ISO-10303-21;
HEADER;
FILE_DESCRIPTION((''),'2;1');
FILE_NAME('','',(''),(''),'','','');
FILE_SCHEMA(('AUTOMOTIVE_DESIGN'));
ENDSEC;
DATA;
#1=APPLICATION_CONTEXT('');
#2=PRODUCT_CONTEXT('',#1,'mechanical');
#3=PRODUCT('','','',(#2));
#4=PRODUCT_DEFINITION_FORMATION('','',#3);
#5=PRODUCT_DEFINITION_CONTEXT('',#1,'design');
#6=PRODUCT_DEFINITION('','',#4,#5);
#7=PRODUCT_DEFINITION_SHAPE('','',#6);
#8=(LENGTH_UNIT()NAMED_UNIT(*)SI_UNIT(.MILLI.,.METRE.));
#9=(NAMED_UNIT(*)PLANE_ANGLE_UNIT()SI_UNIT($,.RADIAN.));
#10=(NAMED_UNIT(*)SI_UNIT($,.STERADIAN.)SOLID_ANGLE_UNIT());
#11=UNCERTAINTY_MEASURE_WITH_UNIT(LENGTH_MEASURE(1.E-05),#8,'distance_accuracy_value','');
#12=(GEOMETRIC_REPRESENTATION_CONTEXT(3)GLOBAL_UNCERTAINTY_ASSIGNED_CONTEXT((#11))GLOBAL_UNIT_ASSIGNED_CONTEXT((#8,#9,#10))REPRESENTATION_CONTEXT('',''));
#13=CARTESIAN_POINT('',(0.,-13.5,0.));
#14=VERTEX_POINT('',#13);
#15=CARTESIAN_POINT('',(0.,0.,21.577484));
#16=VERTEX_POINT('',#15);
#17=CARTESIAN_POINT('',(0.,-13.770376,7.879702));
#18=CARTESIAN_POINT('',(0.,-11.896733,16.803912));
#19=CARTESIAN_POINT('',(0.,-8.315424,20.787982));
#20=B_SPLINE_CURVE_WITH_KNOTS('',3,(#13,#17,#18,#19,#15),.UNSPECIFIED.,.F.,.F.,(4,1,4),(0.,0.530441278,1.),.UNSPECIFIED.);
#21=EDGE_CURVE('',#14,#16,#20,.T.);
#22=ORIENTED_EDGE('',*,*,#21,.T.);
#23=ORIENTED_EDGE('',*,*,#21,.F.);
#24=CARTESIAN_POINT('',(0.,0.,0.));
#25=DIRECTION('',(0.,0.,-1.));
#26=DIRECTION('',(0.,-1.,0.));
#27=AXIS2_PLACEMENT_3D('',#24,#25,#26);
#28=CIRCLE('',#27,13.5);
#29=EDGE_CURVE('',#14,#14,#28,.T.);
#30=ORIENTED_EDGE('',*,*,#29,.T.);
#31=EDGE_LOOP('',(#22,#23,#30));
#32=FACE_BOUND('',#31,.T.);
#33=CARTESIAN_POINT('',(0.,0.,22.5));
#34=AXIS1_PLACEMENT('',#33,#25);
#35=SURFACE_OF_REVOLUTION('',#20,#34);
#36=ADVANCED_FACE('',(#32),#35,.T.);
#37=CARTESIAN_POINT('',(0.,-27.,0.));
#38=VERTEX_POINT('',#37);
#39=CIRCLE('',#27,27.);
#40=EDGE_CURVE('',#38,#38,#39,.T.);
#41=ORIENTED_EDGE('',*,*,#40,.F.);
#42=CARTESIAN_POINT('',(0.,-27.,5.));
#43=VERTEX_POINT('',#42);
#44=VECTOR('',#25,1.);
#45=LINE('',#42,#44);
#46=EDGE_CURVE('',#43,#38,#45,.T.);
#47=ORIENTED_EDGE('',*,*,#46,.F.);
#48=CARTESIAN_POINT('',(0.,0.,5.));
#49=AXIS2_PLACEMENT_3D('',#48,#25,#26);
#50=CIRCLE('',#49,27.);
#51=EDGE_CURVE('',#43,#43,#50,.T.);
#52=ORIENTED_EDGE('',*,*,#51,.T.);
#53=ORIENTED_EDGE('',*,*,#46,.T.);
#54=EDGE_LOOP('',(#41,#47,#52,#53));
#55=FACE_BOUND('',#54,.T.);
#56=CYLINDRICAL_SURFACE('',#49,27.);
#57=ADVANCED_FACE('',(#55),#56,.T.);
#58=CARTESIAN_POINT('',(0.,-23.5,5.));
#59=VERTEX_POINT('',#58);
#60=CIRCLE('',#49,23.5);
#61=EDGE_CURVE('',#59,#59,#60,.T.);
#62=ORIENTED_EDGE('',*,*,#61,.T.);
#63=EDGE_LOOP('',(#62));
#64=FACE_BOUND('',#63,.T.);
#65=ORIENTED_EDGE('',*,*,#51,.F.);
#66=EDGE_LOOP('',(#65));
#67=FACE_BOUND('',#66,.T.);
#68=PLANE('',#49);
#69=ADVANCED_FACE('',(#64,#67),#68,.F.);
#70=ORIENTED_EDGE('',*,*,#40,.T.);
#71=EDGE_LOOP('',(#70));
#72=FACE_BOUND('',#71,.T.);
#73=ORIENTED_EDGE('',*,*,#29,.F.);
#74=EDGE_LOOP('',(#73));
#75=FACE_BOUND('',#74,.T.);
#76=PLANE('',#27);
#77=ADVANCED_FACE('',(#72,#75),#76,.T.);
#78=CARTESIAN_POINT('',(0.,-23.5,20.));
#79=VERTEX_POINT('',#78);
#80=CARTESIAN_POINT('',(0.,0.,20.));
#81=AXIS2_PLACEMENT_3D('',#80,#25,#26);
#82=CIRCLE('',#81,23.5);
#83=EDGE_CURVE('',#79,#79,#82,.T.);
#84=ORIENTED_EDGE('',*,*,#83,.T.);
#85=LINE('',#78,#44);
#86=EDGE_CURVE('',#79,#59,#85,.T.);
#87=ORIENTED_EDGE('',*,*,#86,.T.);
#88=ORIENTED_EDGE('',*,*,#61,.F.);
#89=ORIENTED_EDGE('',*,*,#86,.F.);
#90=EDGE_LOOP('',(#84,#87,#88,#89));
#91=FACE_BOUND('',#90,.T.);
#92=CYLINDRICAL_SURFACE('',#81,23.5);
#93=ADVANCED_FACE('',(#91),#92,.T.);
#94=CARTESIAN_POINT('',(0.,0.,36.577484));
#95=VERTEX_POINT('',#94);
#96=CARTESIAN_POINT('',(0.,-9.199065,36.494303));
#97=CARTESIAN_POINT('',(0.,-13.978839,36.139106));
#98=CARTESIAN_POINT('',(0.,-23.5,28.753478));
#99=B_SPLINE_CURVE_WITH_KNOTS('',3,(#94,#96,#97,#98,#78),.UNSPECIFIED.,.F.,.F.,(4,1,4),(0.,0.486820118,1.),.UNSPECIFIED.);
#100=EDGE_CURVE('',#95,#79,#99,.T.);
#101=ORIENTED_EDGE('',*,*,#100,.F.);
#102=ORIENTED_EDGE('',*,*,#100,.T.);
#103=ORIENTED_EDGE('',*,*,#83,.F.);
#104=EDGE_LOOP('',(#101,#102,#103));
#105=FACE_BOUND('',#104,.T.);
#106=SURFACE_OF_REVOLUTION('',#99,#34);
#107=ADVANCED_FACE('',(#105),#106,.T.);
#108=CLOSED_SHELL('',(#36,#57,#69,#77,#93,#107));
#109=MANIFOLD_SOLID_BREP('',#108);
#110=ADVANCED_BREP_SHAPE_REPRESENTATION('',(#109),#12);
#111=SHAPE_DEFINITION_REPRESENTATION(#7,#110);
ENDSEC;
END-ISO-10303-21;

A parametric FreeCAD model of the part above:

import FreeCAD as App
import Part
import Sketcher
Q = App.Units.Quantity

doc = App.newDocument("Part")
body = doc.addObject("PartDesign::Body", "Body")

sketch1 = body.newObject("Sketcher::SketchObject", "Sketch")
sketch1.AttachmentSupport = (doc.getObject("YZ_Plane"), [""])
sketch1.MapMode = "FlatFace"
sketch1.addGeometry([
    Part.LineSegment(App.Vector(-27, 0, 0), App.Vector(-13.5, 0, 0)),
    Part.BSplineCurve([App.Vector(-13.5, 0, 0), App.Vector(-13.770376, 7.879702, 0), App.Vector(-11.896733, 16.803912, 0), App.Vector(-8.315424, 20.787982, 0), App.Vector(0, 21.577484, 0)], [4, 1, 4], [0, 0.530441278, 1], False, 3, [1, 1, 1, 1, 1], False),
    Part.LineSegment(App.Vector(0, 21.577484, 0), App.Vector(0, 36.577484, 0)),
    Part.BSplineCurve([App.Vector(0, 36.577484, 0), App.Vector(-9.199065, 36.494303, 0), App.Vector(-13.978839, 36.139106, 0), App.Vector(-23.5, 28.753478, 0), App.Vector(-23.5, 20, 0)], [4, 1, 4], [0, 0.486820118, 1], False, 3, [1, 1, 1, 1, 1], False),
    Part.LineSegment(App.Vector(-23.5, 20, 0), App.Vector(-23.5, 5, 0)),
    Part.LineSegment(App.Vector(-23.5, 5, 0), App.Vector(-27, 5, 0)),
    Part.LineSegment(App.Vector(-27, 5, 0), App.Vector(-27, 0, 0)),
], False)
sketch1.addConstraint([
    Sketcher.Constraint("Block", 1),
    Sketcher.Constraint("Block", 3),
    Sketcher.Constraint("Coincident", 0, 2, 1, 1),
    Sketcher.Constraint("Coincident", 1, 2, 2, 1),
    Sketcher.Constraint("Coincident", 2, 2, 3, 1),
    Sketcher.Constraint("Coincident", 3, 2, 4, 1),
    Sketcher.Constraint("Coincident", 4, 2, 5, 1),
    Sketcher.Constraint("Coincident", 5, 2, 6, 1),
    Sketcher.Constraint("Coincident", 6, 2, 0, 1),
    Sketcher.Constraint("Horizontal", 0),
    Sketcher.Constraint("Vertical", 4),
    Sketcher.Constraint("Horizontal", 5),
    Sketcher.Constraint("Vertical", 6),
    Sketcher.Constraint("Equal", 2, 4),
    Sketcher.Constraint("DistanceX", 0, 1, 0, 2, Q("13.5 mm")),
])
revolution = body.newObject("PartDesign::Revolution", "Revolution")
revolution.Profile = sketch1
revolution.ReferenceAxis = (sketch1, ["V_Axis"])
revolution.Angle = 360

doc.recompute()
